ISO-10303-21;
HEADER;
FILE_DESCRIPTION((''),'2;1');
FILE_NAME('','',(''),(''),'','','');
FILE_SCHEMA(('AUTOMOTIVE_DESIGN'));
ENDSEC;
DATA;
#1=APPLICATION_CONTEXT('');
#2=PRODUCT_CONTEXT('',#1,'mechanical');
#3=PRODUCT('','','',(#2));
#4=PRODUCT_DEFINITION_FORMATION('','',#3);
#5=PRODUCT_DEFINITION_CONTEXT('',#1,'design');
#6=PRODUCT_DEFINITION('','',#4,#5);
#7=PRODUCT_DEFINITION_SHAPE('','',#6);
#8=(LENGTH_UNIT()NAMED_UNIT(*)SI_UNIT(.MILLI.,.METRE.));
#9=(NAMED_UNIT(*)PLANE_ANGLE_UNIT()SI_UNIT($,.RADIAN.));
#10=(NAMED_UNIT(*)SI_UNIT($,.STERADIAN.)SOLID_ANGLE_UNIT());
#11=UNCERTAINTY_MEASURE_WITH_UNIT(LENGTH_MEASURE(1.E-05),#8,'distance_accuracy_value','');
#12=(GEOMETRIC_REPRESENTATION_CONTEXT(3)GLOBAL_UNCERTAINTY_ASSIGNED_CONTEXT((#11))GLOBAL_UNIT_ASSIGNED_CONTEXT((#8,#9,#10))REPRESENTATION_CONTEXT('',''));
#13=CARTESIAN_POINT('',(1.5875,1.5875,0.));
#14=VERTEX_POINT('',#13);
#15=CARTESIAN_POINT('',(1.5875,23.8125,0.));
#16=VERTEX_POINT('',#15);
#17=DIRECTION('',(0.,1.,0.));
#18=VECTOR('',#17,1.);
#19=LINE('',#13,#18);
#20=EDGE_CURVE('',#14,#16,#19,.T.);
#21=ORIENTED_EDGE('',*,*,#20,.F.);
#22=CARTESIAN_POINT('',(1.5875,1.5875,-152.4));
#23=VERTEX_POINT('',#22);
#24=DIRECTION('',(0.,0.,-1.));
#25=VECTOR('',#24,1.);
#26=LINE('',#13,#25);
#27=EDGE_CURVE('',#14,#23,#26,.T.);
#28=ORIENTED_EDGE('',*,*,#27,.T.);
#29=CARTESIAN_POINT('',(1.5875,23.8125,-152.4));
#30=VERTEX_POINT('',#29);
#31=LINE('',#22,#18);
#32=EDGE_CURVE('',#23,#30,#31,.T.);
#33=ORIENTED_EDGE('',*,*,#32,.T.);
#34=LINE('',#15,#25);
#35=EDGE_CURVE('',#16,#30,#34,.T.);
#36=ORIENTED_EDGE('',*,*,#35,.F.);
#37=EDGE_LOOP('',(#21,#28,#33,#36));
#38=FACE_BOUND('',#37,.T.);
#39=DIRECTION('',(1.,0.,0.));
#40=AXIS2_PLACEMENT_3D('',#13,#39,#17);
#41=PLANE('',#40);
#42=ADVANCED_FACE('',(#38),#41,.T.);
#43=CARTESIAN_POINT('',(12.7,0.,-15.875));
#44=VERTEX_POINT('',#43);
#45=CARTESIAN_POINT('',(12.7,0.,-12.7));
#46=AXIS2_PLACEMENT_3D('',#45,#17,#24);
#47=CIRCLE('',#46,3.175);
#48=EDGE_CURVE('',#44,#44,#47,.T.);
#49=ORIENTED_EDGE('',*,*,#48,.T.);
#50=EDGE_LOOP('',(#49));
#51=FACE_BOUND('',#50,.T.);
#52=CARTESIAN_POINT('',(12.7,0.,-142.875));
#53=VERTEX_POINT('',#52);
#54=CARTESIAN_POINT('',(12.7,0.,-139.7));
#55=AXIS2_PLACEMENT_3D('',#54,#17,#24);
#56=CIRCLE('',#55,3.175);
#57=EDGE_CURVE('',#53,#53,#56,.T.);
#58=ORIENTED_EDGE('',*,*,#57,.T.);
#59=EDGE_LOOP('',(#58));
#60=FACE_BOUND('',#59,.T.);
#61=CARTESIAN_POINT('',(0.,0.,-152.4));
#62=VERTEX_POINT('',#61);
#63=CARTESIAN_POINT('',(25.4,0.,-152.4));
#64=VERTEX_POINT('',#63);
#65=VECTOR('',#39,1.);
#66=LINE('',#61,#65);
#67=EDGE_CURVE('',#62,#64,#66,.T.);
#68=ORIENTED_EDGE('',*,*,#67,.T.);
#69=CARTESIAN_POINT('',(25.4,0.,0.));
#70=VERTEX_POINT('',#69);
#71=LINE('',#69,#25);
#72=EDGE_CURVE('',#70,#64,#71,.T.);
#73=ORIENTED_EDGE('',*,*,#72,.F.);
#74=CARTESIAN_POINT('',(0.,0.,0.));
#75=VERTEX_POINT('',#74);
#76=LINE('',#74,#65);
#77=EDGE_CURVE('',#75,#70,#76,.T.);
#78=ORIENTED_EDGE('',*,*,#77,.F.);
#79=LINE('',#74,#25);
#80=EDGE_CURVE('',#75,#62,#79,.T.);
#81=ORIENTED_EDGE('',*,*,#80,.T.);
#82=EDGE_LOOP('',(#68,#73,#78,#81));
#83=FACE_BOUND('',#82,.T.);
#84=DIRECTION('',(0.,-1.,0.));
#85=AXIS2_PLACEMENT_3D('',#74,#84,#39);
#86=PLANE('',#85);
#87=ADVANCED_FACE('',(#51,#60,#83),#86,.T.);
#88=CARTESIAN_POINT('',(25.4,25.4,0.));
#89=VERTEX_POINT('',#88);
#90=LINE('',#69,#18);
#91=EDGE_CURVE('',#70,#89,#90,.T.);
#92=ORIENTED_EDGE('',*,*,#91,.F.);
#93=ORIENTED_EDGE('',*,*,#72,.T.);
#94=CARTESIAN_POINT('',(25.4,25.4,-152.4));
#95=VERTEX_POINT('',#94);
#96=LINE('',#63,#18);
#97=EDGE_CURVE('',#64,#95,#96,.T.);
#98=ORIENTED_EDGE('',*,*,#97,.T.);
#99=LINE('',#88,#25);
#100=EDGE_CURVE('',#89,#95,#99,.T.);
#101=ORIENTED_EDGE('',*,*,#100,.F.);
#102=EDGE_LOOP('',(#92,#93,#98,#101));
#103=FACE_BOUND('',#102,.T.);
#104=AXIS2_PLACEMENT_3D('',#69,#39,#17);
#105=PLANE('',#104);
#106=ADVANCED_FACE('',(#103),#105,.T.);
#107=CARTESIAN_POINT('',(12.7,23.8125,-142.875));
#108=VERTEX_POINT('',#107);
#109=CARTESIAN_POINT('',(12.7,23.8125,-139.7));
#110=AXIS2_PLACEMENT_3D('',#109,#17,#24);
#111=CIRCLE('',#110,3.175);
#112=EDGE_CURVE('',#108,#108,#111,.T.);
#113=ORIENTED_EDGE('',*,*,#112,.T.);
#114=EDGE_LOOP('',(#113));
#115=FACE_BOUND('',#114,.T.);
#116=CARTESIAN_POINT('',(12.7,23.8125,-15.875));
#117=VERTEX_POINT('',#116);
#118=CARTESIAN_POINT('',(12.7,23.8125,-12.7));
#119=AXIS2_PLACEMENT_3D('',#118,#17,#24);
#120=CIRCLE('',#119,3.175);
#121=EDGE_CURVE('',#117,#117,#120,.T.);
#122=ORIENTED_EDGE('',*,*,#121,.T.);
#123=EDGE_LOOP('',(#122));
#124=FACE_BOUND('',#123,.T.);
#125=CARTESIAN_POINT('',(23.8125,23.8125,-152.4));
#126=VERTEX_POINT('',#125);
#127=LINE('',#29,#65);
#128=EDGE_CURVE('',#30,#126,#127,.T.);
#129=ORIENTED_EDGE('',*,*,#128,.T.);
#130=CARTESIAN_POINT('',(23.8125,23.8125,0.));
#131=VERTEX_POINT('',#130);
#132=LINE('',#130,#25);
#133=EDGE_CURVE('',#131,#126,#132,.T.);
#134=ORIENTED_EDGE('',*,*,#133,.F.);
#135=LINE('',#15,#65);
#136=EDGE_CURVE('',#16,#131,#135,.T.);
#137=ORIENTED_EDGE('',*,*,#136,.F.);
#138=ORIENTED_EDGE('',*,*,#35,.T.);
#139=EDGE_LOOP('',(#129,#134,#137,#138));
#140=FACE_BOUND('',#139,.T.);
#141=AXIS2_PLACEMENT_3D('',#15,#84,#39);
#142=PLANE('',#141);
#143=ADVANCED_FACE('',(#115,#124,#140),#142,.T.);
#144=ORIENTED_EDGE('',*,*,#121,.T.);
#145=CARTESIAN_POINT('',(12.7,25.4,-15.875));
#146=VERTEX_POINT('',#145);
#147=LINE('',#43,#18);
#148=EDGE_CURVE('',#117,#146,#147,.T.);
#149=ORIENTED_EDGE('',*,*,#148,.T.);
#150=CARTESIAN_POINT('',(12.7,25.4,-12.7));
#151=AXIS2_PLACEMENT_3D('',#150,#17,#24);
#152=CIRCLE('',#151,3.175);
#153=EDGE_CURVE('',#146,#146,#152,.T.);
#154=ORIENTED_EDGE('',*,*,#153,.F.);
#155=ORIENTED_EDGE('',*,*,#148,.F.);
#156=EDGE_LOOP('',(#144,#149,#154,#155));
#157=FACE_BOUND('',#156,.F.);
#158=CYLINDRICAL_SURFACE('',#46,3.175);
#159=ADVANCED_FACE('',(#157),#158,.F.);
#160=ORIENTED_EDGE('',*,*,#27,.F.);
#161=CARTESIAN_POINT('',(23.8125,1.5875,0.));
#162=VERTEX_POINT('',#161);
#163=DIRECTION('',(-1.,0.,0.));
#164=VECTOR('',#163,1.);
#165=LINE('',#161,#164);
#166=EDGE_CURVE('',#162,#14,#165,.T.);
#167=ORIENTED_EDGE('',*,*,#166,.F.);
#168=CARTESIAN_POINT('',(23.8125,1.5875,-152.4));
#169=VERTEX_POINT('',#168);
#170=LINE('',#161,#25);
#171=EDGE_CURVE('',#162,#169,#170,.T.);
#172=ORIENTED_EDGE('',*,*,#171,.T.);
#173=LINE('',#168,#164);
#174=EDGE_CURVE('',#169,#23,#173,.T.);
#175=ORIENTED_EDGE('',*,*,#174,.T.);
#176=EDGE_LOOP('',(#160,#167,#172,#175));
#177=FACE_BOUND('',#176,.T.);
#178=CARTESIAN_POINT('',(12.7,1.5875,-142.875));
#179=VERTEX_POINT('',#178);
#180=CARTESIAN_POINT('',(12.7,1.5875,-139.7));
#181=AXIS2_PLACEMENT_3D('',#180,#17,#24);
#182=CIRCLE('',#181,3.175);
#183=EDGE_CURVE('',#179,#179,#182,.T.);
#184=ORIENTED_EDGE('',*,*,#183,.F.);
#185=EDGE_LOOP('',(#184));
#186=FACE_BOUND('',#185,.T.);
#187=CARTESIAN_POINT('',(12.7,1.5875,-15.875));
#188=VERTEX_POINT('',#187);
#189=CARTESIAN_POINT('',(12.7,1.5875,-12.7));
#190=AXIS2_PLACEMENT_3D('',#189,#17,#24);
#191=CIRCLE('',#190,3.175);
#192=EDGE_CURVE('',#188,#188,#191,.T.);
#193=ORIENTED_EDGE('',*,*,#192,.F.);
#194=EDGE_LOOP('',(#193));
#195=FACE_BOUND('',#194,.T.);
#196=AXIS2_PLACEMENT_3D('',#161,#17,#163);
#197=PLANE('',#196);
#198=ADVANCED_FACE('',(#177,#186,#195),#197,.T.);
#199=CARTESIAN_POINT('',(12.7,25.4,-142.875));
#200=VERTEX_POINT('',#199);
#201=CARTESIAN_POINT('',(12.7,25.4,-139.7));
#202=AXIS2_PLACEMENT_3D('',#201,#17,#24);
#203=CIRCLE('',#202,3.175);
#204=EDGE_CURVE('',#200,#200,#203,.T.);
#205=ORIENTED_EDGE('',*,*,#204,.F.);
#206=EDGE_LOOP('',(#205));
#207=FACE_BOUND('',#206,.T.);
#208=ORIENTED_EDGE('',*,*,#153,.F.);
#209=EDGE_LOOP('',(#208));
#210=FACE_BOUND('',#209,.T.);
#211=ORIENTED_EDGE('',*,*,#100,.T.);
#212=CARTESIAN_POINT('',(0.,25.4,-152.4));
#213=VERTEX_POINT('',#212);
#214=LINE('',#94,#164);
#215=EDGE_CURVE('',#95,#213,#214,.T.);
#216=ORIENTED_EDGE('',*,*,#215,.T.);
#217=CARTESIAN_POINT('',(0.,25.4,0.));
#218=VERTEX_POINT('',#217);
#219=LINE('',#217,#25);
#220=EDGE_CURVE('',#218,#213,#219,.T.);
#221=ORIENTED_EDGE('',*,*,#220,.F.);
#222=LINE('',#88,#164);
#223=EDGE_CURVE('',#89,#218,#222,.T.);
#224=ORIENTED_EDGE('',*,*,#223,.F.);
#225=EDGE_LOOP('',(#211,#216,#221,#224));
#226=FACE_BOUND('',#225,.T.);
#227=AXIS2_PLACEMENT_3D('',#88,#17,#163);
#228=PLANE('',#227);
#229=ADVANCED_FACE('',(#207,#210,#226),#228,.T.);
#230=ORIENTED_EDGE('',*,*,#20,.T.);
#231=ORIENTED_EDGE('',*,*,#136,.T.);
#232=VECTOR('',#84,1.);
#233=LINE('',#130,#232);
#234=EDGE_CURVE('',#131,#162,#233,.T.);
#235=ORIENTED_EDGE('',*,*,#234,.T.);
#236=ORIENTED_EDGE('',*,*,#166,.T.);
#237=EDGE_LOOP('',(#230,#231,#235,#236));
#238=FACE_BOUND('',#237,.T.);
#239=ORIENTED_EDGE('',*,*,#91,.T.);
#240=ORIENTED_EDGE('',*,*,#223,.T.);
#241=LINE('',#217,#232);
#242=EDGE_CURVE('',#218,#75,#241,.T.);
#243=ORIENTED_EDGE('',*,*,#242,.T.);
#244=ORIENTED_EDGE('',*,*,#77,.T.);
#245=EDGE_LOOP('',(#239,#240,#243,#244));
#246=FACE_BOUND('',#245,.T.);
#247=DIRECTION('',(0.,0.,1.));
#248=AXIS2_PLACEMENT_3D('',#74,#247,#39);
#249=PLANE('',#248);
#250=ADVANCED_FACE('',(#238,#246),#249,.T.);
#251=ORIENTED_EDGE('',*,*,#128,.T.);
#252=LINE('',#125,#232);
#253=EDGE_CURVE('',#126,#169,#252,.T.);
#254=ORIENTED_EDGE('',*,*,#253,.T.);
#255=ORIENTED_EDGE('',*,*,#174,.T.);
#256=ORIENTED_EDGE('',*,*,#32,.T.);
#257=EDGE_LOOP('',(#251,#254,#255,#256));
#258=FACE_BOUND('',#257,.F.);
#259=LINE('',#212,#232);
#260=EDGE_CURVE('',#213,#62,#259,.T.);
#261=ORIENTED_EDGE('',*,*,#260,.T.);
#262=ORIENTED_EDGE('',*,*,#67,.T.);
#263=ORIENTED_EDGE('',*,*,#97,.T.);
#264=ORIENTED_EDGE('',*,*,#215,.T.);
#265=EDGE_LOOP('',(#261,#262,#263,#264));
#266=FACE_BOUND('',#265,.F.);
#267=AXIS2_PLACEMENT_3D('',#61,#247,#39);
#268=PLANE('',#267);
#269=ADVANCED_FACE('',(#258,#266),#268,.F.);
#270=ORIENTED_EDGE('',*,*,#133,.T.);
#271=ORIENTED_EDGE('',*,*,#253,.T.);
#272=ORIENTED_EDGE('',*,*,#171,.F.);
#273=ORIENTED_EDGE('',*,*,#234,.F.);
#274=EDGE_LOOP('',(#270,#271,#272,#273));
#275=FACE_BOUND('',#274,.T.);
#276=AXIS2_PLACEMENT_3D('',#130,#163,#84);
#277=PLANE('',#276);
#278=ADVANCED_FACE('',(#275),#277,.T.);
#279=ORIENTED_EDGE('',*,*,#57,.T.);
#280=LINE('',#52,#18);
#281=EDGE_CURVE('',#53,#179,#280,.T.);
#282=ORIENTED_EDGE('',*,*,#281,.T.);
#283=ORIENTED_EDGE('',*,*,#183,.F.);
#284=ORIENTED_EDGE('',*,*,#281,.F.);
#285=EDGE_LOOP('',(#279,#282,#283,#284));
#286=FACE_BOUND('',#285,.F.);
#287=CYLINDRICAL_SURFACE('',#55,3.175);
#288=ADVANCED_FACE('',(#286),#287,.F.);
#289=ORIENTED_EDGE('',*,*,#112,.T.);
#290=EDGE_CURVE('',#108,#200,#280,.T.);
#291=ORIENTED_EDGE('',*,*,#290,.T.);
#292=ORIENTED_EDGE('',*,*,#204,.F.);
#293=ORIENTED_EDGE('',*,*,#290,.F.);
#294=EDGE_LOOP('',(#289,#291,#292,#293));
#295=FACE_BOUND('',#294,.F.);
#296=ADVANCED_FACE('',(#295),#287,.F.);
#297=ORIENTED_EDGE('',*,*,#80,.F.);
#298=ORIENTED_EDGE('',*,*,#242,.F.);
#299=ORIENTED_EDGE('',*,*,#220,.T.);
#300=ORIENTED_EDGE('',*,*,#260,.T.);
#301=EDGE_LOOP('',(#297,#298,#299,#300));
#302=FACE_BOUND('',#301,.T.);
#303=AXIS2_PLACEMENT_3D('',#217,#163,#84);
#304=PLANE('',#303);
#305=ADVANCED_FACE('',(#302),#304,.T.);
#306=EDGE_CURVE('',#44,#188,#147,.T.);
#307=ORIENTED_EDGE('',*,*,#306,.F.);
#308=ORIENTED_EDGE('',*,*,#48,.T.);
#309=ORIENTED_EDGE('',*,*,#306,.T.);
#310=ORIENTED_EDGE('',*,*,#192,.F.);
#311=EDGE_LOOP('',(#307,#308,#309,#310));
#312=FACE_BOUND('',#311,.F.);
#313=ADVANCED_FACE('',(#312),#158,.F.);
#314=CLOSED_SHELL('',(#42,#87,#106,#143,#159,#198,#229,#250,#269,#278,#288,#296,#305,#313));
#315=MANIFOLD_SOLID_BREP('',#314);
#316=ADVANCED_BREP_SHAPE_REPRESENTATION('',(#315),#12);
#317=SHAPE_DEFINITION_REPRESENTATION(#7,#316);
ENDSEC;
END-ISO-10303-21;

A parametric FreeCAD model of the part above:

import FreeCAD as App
import Part
import Sketcher
Q = App.Units.Quantity

doc = App.newDocument("Part")
body = doc.addObject("PartDesign::Body", "Body")

sketch1 = body.newObject("Sketcher::SketchObject", "Sketch")
sketch1.AttachmentSupport = (doc.getObject("XY_Plane"), [""])
sketch1.MapMode = "FlatFace"
sketch1.addGeometry(Part.LineSegment(App.Vector(0, 25, 0), App.Vector(0, 0, 0)), False)
sketch1.addGeometry(Part.LineSegment(App.Vector(0, 0, 0), App.Vector(25, 0, 0)), False)
sketch1.addGeometry(Part.LineSegment(App.Vector(25, 0, 0), App.Vector(25, 25, 0)), False)
sketch1.addGeometry(Part.LineSegment(App.Vector(25, 25, 0), App.Vector(0, 25, 0)), False)
sketch1.addGeometry(Part.LineSegment(App.Vector(2, 2, 0), App.Vector(2, 24, 0)), False)
sketch1.addGeometry(Part.LineSegment(App.Vector(2, 24, 0), App.Vector(24, 24, 0)), False)
sketch1.addGeometry(Part.LineSegment(App.Vector(24, 24, 0), App.Vector(24, 2, 0)), False)
sketch1.addGeometry(Part.LineSegment(App.Vector(24, 2, 0), App.Vector(2, 2, 0)), False)
sketch1.addConstraint(Sketcher.Constraint("Coincident", 0, 2, 1, 1))
sketch1.addConstraint(Sketcher.Constraint("Coincident", 1, 2, 2, 1))
sketch1.addConstraint(Sketcher.Constraint("Coincident", 2, 2, 3, 1))
sketch1.addConstraint(Sketcher.Constraint("Coincident", 3, 2, 0, 1))
sketch1.addConstraint(Sketcher.Constraint("Coincident", 4, 2, 5, 1))
sketch1.addConstraint(Sketcher.Constraint("Coincident", 5, 2, 6, 1))
sketch1.addConstraint(Sketcher.Constraint("Coincident", 6, 2, 7, 1))
sketch1.addConstraint(Sketcher.Constraint("Coincident", 7, 2, 4, 1))
sketch1.addConstraint(Sketcher.Constraint("Vertical", 0))
sketch1.addConstraint(Sketcher.Constraint("Horizontal", 1))
sketch1.addConstraint(Sketcher.Constraint("Vertical", 2))
sketch1.addConstraint(Sketcher.Constraint("Horizontal", 3))
sketch1.addConstraint(Sketcher.Constraint("Vertical", 4))
sketch1.addConstraint(Sketcher.Constraint("Horizontal", 5))
sketch1.addConstraint(Sketcher.Constraint("Vertical", 6))
sketch1.addConstraint(Sketcher.Constraint("Horizontal", 7))
sketch1.addConstraint(Sketcher.Constraint("Coincident", 0, 2, -1, 1))
sketch1.addConstraint(Sketcher.Constraint("Equal", 3, 0))
sketch1.addConstraint(Sketcher.Constraint("Equal", 7, 4))
sketch1.addConstraint(Sketcher.Constraint("DistanceX", 1, 1, 1, 2, Q("1 in")))
sketch1.addConstraint(Sketcher.Constraint("DistanceX", -1, 1, 4, 2, Q("0.0625 in")))
sketch1.addConstraint(Sketcher.Constraint("DistanceY", -1, 1, 6, 2, Q("0.0625 in")))
sketch1.addConstraint(Sketcher.Constraint("DistanceY", 4, 2, 3, 2, Q("0.0625 in")))
pad1 = body.newObject("PartDesign::Pad", "Pad")
pad1.Profile = sketch1
pad1.Length = Q("6 in")
pad1.Reversed = True

sketch2 = body.newObject("Sketcher::SketchObject", "Sketch001")
sketch2.AttachmentSupport = (doc.getObject("XZ_Plane"), [""])
sketch2.MapMode = "FlatFace"
sketch2.addGeometry(Part.Circle(App.Vector(12.7, -12.7, 0), App.Vector(0, 0, 1), 3.2), False)
sketch2.addGeometry(Part.Circle(App.Vector(12.7, -139.7, 0), App.Vector(0, 0, 1), 3.2), False)
sketch2.addConstraint(Sketcher.Constraint("Equal", 0, 1))
sketch2.addConstraint(Sketcher.Constraint("Vertical", 0, 3, 1, 3))
sketch2.addConstraint(Sketcher.Constraint("Diameter", 0, Q("0.25 in")))
sketch2.addConstraint(Sketcher.Constraint("DistanceY", 1, 3, 0, 3, Q("5 in")))
sketch2.addConstraint(Sketcher.Constraint("DistanceX", -1, 1, 0, 3, Q("0.5 in")))
sketch2.addConstraint(Sketcher.Constraint("DistanceY", 0, 3, -1, 1, Q("0.5 in")))
doc.recompute()
hole = body.newObject("PartDesign::Hole", "Hole")
hole.Profile = sketch2
hole.ThreadType = "None"
hole.Diameter = Q("0.25 in")
hole.DepthType = "Dimension"
hole.Depth = Q("1 in")
hole.DrillPoint = "Angled"
hole.DrillPointAngle = 118

doc.recompute()
